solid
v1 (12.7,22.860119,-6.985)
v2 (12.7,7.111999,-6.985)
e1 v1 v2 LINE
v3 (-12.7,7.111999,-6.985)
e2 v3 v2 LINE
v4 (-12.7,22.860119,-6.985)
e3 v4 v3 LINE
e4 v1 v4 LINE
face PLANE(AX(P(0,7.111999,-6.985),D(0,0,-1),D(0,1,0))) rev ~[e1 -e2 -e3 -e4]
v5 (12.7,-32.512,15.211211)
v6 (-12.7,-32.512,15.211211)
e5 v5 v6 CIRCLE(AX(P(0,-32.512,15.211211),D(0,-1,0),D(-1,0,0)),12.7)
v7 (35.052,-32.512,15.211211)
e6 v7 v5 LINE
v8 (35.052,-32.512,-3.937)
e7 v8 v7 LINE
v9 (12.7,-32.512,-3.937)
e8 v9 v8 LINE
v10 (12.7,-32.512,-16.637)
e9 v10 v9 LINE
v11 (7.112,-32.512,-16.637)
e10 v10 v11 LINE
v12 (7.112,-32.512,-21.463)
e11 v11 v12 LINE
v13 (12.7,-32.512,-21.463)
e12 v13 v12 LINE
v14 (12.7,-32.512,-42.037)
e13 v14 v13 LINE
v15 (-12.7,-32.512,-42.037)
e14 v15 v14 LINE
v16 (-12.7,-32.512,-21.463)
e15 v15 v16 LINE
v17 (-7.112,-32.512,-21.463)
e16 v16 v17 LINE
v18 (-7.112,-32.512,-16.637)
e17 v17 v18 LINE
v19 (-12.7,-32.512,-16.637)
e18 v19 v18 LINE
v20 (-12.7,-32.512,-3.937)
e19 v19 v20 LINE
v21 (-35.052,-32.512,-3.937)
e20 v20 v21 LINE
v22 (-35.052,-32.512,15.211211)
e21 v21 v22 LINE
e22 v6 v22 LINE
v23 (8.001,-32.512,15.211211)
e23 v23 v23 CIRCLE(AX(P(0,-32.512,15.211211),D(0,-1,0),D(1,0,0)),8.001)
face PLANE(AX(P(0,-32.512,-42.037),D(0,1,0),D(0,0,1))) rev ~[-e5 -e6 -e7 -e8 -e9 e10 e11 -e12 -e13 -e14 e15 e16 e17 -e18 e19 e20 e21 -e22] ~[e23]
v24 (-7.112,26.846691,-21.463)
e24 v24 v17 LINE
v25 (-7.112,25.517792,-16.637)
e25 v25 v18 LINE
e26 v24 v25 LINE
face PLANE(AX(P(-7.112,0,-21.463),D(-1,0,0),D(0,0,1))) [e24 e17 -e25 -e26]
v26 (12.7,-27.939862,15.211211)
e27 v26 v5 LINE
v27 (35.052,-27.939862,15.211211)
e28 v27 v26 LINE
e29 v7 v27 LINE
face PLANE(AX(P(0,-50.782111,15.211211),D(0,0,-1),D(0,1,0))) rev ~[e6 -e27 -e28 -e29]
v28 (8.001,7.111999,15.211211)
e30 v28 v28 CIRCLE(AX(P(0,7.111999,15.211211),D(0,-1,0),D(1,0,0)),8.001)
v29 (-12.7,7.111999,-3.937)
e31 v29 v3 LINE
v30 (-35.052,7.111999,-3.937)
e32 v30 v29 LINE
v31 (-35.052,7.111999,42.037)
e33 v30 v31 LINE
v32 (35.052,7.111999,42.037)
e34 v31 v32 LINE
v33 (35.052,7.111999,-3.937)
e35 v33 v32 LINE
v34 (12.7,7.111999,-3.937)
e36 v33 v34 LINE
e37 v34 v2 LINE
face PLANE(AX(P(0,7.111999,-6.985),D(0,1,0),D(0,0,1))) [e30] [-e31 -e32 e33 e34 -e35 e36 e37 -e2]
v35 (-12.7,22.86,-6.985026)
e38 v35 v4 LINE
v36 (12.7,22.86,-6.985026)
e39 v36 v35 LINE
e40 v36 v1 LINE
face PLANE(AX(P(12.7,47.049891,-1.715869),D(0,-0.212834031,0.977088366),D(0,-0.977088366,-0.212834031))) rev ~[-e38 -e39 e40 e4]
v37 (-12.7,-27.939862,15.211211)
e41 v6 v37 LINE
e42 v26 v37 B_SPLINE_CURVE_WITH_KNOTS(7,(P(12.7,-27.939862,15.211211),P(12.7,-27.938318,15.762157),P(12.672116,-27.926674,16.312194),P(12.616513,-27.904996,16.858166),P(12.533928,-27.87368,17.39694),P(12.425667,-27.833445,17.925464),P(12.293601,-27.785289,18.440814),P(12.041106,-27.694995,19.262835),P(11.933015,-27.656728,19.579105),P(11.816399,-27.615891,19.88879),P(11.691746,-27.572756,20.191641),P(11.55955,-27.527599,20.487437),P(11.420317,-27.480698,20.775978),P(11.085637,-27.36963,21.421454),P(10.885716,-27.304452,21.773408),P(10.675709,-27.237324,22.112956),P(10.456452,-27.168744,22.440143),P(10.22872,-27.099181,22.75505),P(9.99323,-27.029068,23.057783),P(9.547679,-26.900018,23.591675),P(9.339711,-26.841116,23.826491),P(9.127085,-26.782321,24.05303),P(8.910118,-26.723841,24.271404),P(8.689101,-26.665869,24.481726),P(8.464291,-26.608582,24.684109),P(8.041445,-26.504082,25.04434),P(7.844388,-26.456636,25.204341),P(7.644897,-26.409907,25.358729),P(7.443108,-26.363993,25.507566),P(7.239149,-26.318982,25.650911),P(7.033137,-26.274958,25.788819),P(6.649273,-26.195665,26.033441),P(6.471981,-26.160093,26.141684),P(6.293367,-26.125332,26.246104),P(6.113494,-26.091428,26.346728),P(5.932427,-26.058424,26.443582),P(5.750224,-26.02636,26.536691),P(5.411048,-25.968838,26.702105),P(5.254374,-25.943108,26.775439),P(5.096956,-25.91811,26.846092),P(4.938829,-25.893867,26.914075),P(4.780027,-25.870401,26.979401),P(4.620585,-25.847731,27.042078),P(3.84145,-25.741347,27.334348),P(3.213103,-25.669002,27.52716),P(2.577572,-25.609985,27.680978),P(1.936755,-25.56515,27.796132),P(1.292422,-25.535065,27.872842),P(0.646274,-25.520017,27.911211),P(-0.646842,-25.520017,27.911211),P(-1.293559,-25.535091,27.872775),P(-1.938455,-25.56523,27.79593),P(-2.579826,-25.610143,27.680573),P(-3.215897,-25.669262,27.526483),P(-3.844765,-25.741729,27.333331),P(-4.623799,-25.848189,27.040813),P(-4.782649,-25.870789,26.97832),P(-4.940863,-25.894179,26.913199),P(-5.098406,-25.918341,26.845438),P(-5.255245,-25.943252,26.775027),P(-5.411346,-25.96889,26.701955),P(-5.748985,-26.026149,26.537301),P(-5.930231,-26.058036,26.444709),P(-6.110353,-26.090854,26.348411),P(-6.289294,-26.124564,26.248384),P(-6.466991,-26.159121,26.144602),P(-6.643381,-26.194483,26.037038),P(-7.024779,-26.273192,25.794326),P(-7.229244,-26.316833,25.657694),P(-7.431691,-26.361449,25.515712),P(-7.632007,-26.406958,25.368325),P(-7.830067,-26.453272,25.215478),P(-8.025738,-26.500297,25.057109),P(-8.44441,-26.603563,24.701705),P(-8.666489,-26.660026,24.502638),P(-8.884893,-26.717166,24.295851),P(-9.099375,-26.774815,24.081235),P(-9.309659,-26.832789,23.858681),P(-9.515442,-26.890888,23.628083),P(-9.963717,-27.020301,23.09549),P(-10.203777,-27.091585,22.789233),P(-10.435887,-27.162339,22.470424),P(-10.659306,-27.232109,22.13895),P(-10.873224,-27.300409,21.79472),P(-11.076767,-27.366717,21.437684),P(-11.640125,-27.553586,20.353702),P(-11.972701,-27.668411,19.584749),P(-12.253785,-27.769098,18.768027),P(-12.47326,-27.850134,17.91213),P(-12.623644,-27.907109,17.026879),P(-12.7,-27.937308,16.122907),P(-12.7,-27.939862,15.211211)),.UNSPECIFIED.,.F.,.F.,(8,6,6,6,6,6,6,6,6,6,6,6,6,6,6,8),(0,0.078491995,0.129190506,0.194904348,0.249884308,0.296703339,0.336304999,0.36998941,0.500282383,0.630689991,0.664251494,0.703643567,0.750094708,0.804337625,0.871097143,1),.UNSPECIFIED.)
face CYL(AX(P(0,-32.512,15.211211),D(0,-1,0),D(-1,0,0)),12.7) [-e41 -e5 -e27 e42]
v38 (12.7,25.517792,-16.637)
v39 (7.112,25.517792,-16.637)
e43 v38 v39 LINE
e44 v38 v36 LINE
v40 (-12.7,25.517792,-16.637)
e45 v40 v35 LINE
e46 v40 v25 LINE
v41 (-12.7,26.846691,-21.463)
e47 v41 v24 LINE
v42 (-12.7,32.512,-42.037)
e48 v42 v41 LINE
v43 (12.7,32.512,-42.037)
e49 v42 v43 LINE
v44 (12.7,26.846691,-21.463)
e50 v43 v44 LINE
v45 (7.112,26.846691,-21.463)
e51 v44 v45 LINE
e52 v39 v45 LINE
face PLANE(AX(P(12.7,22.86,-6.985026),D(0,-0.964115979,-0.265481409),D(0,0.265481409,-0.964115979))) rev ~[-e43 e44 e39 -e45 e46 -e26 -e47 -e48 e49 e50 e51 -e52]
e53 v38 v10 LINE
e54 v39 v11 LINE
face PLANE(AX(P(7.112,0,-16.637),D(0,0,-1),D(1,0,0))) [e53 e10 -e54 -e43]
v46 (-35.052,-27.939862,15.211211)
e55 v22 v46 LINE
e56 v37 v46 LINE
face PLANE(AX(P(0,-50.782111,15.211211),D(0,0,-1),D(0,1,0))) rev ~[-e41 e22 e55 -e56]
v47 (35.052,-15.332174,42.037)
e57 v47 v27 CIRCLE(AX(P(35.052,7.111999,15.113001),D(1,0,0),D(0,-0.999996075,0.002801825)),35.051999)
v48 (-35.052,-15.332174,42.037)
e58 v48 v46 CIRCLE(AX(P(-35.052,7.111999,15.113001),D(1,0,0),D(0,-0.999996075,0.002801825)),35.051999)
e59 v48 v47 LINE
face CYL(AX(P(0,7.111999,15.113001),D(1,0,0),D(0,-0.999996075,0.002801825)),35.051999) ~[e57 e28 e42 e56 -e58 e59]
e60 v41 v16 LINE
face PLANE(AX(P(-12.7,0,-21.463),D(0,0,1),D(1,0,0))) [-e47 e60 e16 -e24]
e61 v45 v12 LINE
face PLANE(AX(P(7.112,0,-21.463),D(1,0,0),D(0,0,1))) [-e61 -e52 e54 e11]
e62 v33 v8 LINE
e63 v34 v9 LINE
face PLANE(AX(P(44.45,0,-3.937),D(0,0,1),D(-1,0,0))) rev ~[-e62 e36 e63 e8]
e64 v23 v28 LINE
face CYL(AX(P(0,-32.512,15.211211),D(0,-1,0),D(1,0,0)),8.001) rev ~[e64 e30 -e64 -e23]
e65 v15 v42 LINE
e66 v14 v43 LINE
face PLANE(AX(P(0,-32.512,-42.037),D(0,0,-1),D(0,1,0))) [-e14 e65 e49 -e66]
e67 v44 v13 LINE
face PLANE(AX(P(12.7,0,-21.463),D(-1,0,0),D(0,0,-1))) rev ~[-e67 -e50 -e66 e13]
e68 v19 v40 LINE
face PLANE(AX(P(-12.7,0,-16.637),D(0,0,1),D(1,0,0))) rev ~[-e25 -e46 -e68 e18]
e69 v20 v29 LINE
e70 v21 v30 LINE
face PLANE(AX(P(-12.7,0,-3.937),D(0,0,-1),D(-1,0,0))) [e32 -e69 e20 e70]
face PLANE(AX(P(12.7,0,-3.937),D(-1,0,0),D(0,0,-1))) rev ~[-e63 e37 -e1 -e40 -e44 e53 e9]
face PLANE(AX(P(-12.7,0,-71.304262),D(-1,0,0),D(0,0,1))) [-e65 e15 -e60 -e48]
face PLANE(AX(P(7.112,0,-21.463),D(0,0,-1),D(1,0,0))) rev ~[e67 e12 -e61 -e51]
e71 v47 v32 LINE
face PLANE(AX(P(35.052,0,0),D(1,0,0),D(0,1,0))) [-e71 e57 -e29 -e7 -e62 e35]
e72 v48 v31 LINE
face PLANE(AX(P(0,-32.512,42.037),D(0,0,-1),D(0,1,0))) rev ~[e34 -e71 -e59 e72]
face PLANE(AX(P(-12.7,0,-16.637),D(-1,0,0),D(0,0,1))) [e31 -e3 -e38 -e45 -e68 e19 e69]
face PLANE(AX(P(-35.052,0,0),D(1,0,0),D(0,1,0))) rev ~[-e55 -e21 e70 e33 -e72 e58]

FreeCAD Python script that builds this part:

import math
import FreeCAD as App
import Part
import Sketcher

V = App.Vector
Q = App.Units.Quantity

doc = App.newDocument("Part")
body = doc.addObject("PartDesign::Body", "Body")

# Sketch on YZ plane
sketch1 = body.newObject("Sketcher::SketchObject", "Sketch")
sketch1.AttachmentSupport = (doc.getObject("YZ_Plane"), [""])
sketch1.MapMode = "FlatFace"
sketch1.addGeometry([
    Part.LineSegment(V(-32.512, 42.037, 0), V(-32.512, -42.037, 0)),
    Part.LineSegment(V(-32.512, -42.037, 0), V(32.512, -42.037, 0)),
    Part.LineSegment(V(32.512, -42.037, 0), V(32.512, 42.037, 0)),
    Part.LineSegment(V(32.512, 42.037, 0), V(-32.512, 42.037, 0)),
], False)
sketch1.addConstraint([
    Sketcher.Constraint("Coincident", 0, 2, 1, 1),
    Sketcher.Constraint("Coincident", 1, 2, 2, 1),
    Sketcher.Constraint("Coincident", 2, 2, 3, 1),
    Sketcher.Constraint("Coincident", 3, 2, 0, 1),
    Sketcher.Constraint("Vertical", 0),
    Sketcher.Constraint("Horizontal", 1),
    Sketcher.Constraint("Vertical", 2),
    Sketcher.Constraint("Horizontal", 3),
    Sketcher.Constraint("Symmetric", 0, 2, 2, 2, -1, 1),
    Sketcher.Constraint("DistanceX", 1, 1, 1, 2, Q("2.56 in")),
    Sketcher.Constraint("DistanceY", 0, 2, 0, 1, Q("3.31 in")),
])
pad1 = body.newObject("PartDesign::Pad", "Pad")
pad1.Profile = sketch1
pad1.Length = Q("2.76 in")
pad1.Midplane = True

# Sketch on XZ plane
sketch2 = body.newObject("Sketcher::SketchObject", "Sketch001")
sketch2.AttachmentSupport = (doc.getObject("XZ_Plane"), [""])
sketch2.MapMode = "FlatFace"
sketch2.addGeometry([
    Part.LineSegment(V(-44.45, -3.937, 0), V(-44.45, -71.304262, 0)),  # 0
    Part.LineSegment(V(-44.45, -71.304262, 0), V(-12.7, -71.304262, 0)),  # 1
    Part.LineSegment(V(-12.7, -71.304262, 0), V(-12.7, -21.463, 0)),  # 2
    Part.LineSegment(V(-12.7, -21.463, 0), V(-7.112, -21.463, 0)),  # 3
    Part.LineSegment(V(-7.112, -21.463, 0), V(-7.112, -16.637, 0)),  # 4
    Part.LineSegment(V(-7.112, -16.637, 0), V(-12.7, -16.637, 0)),  # 5
    Part.LineSegment(V(-12.7, -16.637, 0), V(-12.7, -3.937, 0)),  # 6
    Part.LineSegment(V(-12.7, -3.937, 0), V(-44.45, -3.937, 0)),  # 7
    Part.LineSegment(V(44.45, -3.937, 0), V(12.7, -3.937, 0)),  # 8
    Part.LineSegment(V(12.7, -3.937, 0), V(12.7, -16.637, 0)),  # 9
    Part.LineSegment(V(12.7, -16.637, 0), V(7.112, -16.637, 0)),  # 10
    Part.LineSegment(V(7.112, -16.637, 0), V(7.112, -21.463, 0)),  # 11
    Part.LineSegment(V(7.112, -21.463, 0), V(12.7, -21.463, 0)),  # 12
    Part.LineSegment(V(12.7, -21.463, 0), V(12.7, -71.188014, 0)),  # 13
    Part.LineSegment(V(12.7, -71.188014, 0), V(44.45, -71.188014, 0)),  # 14
    Part.LineSegment(V(44.45, -71.188014, 0), V(44.45, -3.937, 0)),  # 15
], False)
sketch2.addConstraint([
    Sketcher.Constraint("Coincident", 0, 2, 1, 1),
    Sketcher.Constraint("Coincident", 1, 2, 2, 1),
    Sketcher.Constraint("Coincident", 2, 2, 3, 1),
    Sketcher.Constraint("Coincident", 3, 2, 4, 1),
    Sketcher.Constraint("Coincident", 4, 2, 5, 1),
    Sketcher.Constraint("Coincident", 5, 2, 6, 1),
    Sketcher.Constraint("Coincident", 6, 2, 7, 1),
    Sketcher.Constraint("Coincident", 7, 2, 0, 1),
    Sketcher.Constraint("Coincident", 8, 2, 9, 1),
    Sketcher.Constraint("Coincident", 9, 2, 10, 1),
    Sketcher.Constraint("Coincident", 10, 2, 11, 1),
    Sketcher.Constraint("Coincident", 11, 2, 12, 1),
    Sketcher.Constraint("Coincident", 12, 2, 13, 1),
    Sketcher.Constraint("Coincident", 13, 2, 14, 1),
    Sketcher.Constraint("Coincident", 14, 2, 15, 1),
    Sketcher.Constraint("Coincident", 15, 2, 8, 1),
    Sketcher.Constraint("Vertical", 0),
    Sketcher.Constraint("Horizontal", 1),
    Sketcher.Constraint("Vertical", 2),
    Sketcher.Constraint("Horizontal", 3),
    Sketcher.Constraint("Vertical", 4),
    Sketcher.Constraint("Horizontal", 5),
    Sketcher.Constraint("Vertical", 6),
    Sketcher.Constraint("Horizontal", 7),
    Sketcher.Constraint("Horizontal", 8),
    Sketcher.Constraint("Vertical", 9),
    Sketcher.Constraint("Horizontal", 10),
    Sketcher.Constraint("Vertical", 11),
    Sketcher.Constraint("Horizontal", 12),
    Sketcher.Constraint("Vertical", 13),
    Sketcher.Constraint("Horizontal", 14),
    Sketcher.Constraint("Vertical", 15),
    Sketcher.Constraint("Symmetric", 6, 2, 8, 2, -2),
    Sketcher.Constraint("Symmetric", 4, 2, 10, 2, -2),
    Sketcher.Constraint("Symmetric", 2, 2, 12, 2, -2),
    Sketcher.Constraint("Vertical", 2, 2, 5, 2),
    Sketcher.Constraint("Equal", 7, 8),
    Sketcher.Constraint("DistanceY", 6, 1, 6, 2, Q("0.5 in")),
    Sketcher.Constraint("DistanceX", 6, 2, 8, 2, Q("1 in")),
    Sketcher.Constraint("DistanceX", 1, 1, 1, 2, Q("1.25 in")),
    Sketcher.Constraint("DistanceX", 3, 1, 3, 2, Q("0.22 in")),
    Sketcher.Constraint("DistanceY", 4, 1, 4, 2, Q("0.19 in")),
    Sketcher.Constraint("DistanceY", 2, 2, -1, 1, Q("0.845 in")),
    Sketcher.Constraint("DistanceY", 0, 2, 0, 1, Q("67.367262 mm")),
    Sketcher.Constraint("DistanceY", 13, 2, 13, 1, Q("49.725014 mm")),
])
pocket1 = body.newObject("PartDesign::Pocket", "Pocket")
pocket1.Profile = sketch2
pocket1.Length = Q("10 in")
pocket1.Midplane = True

# Sketch on YZ plane
sketch3 = body.newObject("Sketcher::SketchObject", "Sketch002")
sketch3.AttachmentSupport = (doc.getObject("YZ_Plane"), [""])
sketch3.MapMode = "FlatFace"
sketch3.addGeometry([
    Part.LineSegment(V(7.111999, 62.326896, 0), V(7.111999, -6.985, 0)),
    Part.LineSegment(V(7.111999, -6.985, 0), V(69.788213, -6.985, 0)),
    Part.LineSegment(V(69.788213, -6.985, 0), V(69.788213, 62.326896, 0)),
    Part.LineSegment(V(69.788213, 62.326896, 0), V(7.111999, 62.326896, 0)),
], False)
sketch3.addConstraint([
    Sketcher.Constraint("Coincident", 0, 2, 1, 1),
    Sketcher.Constraint("Coincident", 1, 2, 2, 1),
    Sketcher.Constraint("Coincident", 2, 2, 3, 1),
    Sketcher.Constraint("Coincident", 3, 2, 0, 1),
    Sketcher.Constraint("Vertical", 0),
    Sketcher.Constraint("Horizontal", 1),
    Sketcher.Constraint("Vertical", 2),
    Sketcher.Constraint("Horizontal", 3),
    Sketcher.Constraint("DistanceX", -1, 1, 0, 2, Q("0.28 in")),
    Sketcher.Constraint("DistanceY", 0, 2, -1, 1, Q("0.275 in")),
    Sketcher.Constraint("DistanceX", 1, 1, 1, 2, Q("62.676213 mm")),
    Sketcher.Constraint("DistanceY", 0, 2, 0, 1, Q("69.311896 mm")),
])
pocket2 = body.newObject("PartDesign::Pocket", "Pocket001")
pocket2.Profile = sketch3
pocket2.Length = Q("10 in")
pocket2.Midplane = True

# Sketch on YZ plane
sketch4 = body.newObject("Sketcher::SketchObject", "Sketch003")
sketch4.AttachmentSupport = (doc.getObject("YZ_Plane"), [""])
sketch4.MapMode = "FlatFace"
sketch4.AttachmentOffset = App.Placement(V(0, 0, 0.5 * 25.4), App.Rotation())
sketch4.addGeometry([
    Part.LineSegment(V(22.86, -6.985026, 0), V(32.512, -42.037, 0)),
    Part.LineSegment(V(32.512, -42.037, 0), V(51.482223, -29.319761, 0)),
    Part.LineSegment(V(51.482223, -29.319761, 0), V(47.049891, -1.715869, 0)),
    Part.LineSegment(V(47.049891, -1.715869, 0), V(22.86, -6.985026, 0)),
], False)
sketch4.addConstraint([
    Sketcher.Constraint("Coincident", 0, 2, 1, 1),
    Sketcher.Constraint("Coincident", 1, 2, 2, 1),
    Sketcher.Constraint("Coincident", 2, 2, 3, 1),
    Sketcher.Constraint("Coincident", 3, 2, 0, 1),
    Sketcher.Constraint("DistanceX", -1, 1, 3, 2, Q("0.9 in")),
    Sketcher.Constraint("DistanceX", -1, 1, 0, 2, Q("1.28 in")),
    Sketcher.Constraint("DistanceY", 0, 2, -1, 1, Q("1.655 in")),
    Sketcher.Constraint("Distance", 1, Q("22.83851 mm")),
    Sketcher.Constraint("DistanceY", 1, 2, -1, 1, Q("29.319761 mm")),
    Sketcher.Constraint("DistanceX", -1, 1, 2, 2, Q("47.049891 mm")),
    Sketcher.Constraint("DistanceY", 2, 2, -1, 1, Q("1.715869 mm")),
    Sketcher.Constraint("Distance", 0, Q("36.356595 mm")),
])
pocket3 = body.newObject("PartDesign::Pocket", "Pocket002")
pocket3.Profile = sketch4
pocket3.Length = Q("10 in")
pocket3.Midplane = True

# Sketch on YZ plane
sketch5 = body.newObject("Sketcher::SketchObject", "Sketch004")
sketch5.AttachmentSupport = (doc.getObject("YZ_Plane"), [""])
sketch5.MapMode = "FlatFace"
sketch5.addGeometry([
    Part.ArcOfCircle(Part.Circle(V(7.111999, 15.113001, 0), V(0, 0, 1), 35.051999), math.radians(90.342213), math.radians(179.839467)),
    Part.LineSegment(V(6.902644, 50.164375, 0), V(-42.650253, 55.479672, 0)),
    Part.LineSegment(V(-42.650253, 55.479672, 0), V(-50.782111, 15.211211, 0)),
    Part.LineSegment(V(-50.782111, 15.211211, 0), V(-27.939862, 15.211211, 0)),
], False)
sketch5.addConstraint([
    Sketcher.Constraint("Coincident", 0, 1, 1, 1),
    Sketcher.Constraint("Coincident", 1, 2, 2, 1),
    Sketcher.Constraint("Coincident", 2, 2, 3, 1),
    Sketcher.Constraint("Coincident", 3, 2, 0, 2),
    Sketcher.Constraint("Horizontal", 3),
    Sketcher.Constraint("Radius", 0, Q("1.38 in")),
    Sketcher.Constraint("DistanceX", -1, 1, 0, 3, Q("0.28 in")),
    Sketcher.Constraint("DistanceY", -1, 1, 0, 3, Q("0.5950001 in")),
    Sketcher.Constraint("DistanceX", 3, 1, 3, 2, Q("22.842249 mm")),
    Sketcher.Constraint("DistanceY", -1, 1, 2, 2, Q("15.211211 mm")),
    Sketcher.Constraint("DistanceY", 0, 3, 1, 2, Q("40.366671 mm")),
    Sketcher.Constraint("DistanceX", 2, 2, 1, 2, Q("8.131858 mm")),
    Sketcher.Constraint("Distance", 1, Q("49.837155 mm")),
])
pocket4 = body.newObject("PartDesign::Pocket", "Pocket003")
pocket4.Profile = sketch5
pocket4.Length = Q("10 in")
pocket4.Midplane = True

# Sketch on XZ plane
sketch6 = body.newObject("Sketcher::SketchObject", "Sketch005")
sketch6.AttachmentSupport = (doc.getObject("XZ_Plane"), [""])
sketch6.MapMode = "FlatFace"
sketch6.AttachmentOffset = App.Placement(V(0, 0, 1.28 * 25.4), App.Rotation())
sketch6.addGeometry(Part.Circle(V(0, 15.211211, 0), V(0, 0, 1), 12.7), False)
sketch6.addConstraint([
    Sketcher.Constraint("PointOnObject", 0, 3, -2),
    Sketcher.Constraint("Diameter", 0, Q("1 in")),
    Sketcher.Constraint("DistanceY", -1, 1, 0, 3, Q("15.211211 mm")),
])
pad2 = body.newObject("PartDesign::Pad", "Pad001")
pad2.Profile = sketch6
pad2.Length = Q("1 in")
pad2.Reversed = True

# Sketch on XZ plane
sketch7 = body.newObject("Sketcher::SketchObject", "Sketch006")
sketch7.AttachmentSupport = (doc.getObject("XZ_Plane"), [""])
sketch7.MapMode = "FlatFace"
sketch7.AttachmentOffset = App.Placement(V(0, 0, 1.28 * 25.4), App.Rotation())
sketch7.addGeometry(Part.Circle(V(0, 15.211211, 0), V(0, 0, 1), 8.001), False)
sketch7.addConstraint([
    Sketcher.Constraint("PointOnObject", 0, 3, -2),
    Sketcher.Constraint("Diameter", 0, Q("0.63 in")),
    Sketcher.Constraint("DistanceY", -1, 1, 0, 3, Q("15.211211 mm")),
])
pocket5 = body.newObject("PartDesign::Pocket", "Pocket004")
pocket5.Profile = sketch7
pocket5.Type = "ThroughAll"

doc.recompute()
